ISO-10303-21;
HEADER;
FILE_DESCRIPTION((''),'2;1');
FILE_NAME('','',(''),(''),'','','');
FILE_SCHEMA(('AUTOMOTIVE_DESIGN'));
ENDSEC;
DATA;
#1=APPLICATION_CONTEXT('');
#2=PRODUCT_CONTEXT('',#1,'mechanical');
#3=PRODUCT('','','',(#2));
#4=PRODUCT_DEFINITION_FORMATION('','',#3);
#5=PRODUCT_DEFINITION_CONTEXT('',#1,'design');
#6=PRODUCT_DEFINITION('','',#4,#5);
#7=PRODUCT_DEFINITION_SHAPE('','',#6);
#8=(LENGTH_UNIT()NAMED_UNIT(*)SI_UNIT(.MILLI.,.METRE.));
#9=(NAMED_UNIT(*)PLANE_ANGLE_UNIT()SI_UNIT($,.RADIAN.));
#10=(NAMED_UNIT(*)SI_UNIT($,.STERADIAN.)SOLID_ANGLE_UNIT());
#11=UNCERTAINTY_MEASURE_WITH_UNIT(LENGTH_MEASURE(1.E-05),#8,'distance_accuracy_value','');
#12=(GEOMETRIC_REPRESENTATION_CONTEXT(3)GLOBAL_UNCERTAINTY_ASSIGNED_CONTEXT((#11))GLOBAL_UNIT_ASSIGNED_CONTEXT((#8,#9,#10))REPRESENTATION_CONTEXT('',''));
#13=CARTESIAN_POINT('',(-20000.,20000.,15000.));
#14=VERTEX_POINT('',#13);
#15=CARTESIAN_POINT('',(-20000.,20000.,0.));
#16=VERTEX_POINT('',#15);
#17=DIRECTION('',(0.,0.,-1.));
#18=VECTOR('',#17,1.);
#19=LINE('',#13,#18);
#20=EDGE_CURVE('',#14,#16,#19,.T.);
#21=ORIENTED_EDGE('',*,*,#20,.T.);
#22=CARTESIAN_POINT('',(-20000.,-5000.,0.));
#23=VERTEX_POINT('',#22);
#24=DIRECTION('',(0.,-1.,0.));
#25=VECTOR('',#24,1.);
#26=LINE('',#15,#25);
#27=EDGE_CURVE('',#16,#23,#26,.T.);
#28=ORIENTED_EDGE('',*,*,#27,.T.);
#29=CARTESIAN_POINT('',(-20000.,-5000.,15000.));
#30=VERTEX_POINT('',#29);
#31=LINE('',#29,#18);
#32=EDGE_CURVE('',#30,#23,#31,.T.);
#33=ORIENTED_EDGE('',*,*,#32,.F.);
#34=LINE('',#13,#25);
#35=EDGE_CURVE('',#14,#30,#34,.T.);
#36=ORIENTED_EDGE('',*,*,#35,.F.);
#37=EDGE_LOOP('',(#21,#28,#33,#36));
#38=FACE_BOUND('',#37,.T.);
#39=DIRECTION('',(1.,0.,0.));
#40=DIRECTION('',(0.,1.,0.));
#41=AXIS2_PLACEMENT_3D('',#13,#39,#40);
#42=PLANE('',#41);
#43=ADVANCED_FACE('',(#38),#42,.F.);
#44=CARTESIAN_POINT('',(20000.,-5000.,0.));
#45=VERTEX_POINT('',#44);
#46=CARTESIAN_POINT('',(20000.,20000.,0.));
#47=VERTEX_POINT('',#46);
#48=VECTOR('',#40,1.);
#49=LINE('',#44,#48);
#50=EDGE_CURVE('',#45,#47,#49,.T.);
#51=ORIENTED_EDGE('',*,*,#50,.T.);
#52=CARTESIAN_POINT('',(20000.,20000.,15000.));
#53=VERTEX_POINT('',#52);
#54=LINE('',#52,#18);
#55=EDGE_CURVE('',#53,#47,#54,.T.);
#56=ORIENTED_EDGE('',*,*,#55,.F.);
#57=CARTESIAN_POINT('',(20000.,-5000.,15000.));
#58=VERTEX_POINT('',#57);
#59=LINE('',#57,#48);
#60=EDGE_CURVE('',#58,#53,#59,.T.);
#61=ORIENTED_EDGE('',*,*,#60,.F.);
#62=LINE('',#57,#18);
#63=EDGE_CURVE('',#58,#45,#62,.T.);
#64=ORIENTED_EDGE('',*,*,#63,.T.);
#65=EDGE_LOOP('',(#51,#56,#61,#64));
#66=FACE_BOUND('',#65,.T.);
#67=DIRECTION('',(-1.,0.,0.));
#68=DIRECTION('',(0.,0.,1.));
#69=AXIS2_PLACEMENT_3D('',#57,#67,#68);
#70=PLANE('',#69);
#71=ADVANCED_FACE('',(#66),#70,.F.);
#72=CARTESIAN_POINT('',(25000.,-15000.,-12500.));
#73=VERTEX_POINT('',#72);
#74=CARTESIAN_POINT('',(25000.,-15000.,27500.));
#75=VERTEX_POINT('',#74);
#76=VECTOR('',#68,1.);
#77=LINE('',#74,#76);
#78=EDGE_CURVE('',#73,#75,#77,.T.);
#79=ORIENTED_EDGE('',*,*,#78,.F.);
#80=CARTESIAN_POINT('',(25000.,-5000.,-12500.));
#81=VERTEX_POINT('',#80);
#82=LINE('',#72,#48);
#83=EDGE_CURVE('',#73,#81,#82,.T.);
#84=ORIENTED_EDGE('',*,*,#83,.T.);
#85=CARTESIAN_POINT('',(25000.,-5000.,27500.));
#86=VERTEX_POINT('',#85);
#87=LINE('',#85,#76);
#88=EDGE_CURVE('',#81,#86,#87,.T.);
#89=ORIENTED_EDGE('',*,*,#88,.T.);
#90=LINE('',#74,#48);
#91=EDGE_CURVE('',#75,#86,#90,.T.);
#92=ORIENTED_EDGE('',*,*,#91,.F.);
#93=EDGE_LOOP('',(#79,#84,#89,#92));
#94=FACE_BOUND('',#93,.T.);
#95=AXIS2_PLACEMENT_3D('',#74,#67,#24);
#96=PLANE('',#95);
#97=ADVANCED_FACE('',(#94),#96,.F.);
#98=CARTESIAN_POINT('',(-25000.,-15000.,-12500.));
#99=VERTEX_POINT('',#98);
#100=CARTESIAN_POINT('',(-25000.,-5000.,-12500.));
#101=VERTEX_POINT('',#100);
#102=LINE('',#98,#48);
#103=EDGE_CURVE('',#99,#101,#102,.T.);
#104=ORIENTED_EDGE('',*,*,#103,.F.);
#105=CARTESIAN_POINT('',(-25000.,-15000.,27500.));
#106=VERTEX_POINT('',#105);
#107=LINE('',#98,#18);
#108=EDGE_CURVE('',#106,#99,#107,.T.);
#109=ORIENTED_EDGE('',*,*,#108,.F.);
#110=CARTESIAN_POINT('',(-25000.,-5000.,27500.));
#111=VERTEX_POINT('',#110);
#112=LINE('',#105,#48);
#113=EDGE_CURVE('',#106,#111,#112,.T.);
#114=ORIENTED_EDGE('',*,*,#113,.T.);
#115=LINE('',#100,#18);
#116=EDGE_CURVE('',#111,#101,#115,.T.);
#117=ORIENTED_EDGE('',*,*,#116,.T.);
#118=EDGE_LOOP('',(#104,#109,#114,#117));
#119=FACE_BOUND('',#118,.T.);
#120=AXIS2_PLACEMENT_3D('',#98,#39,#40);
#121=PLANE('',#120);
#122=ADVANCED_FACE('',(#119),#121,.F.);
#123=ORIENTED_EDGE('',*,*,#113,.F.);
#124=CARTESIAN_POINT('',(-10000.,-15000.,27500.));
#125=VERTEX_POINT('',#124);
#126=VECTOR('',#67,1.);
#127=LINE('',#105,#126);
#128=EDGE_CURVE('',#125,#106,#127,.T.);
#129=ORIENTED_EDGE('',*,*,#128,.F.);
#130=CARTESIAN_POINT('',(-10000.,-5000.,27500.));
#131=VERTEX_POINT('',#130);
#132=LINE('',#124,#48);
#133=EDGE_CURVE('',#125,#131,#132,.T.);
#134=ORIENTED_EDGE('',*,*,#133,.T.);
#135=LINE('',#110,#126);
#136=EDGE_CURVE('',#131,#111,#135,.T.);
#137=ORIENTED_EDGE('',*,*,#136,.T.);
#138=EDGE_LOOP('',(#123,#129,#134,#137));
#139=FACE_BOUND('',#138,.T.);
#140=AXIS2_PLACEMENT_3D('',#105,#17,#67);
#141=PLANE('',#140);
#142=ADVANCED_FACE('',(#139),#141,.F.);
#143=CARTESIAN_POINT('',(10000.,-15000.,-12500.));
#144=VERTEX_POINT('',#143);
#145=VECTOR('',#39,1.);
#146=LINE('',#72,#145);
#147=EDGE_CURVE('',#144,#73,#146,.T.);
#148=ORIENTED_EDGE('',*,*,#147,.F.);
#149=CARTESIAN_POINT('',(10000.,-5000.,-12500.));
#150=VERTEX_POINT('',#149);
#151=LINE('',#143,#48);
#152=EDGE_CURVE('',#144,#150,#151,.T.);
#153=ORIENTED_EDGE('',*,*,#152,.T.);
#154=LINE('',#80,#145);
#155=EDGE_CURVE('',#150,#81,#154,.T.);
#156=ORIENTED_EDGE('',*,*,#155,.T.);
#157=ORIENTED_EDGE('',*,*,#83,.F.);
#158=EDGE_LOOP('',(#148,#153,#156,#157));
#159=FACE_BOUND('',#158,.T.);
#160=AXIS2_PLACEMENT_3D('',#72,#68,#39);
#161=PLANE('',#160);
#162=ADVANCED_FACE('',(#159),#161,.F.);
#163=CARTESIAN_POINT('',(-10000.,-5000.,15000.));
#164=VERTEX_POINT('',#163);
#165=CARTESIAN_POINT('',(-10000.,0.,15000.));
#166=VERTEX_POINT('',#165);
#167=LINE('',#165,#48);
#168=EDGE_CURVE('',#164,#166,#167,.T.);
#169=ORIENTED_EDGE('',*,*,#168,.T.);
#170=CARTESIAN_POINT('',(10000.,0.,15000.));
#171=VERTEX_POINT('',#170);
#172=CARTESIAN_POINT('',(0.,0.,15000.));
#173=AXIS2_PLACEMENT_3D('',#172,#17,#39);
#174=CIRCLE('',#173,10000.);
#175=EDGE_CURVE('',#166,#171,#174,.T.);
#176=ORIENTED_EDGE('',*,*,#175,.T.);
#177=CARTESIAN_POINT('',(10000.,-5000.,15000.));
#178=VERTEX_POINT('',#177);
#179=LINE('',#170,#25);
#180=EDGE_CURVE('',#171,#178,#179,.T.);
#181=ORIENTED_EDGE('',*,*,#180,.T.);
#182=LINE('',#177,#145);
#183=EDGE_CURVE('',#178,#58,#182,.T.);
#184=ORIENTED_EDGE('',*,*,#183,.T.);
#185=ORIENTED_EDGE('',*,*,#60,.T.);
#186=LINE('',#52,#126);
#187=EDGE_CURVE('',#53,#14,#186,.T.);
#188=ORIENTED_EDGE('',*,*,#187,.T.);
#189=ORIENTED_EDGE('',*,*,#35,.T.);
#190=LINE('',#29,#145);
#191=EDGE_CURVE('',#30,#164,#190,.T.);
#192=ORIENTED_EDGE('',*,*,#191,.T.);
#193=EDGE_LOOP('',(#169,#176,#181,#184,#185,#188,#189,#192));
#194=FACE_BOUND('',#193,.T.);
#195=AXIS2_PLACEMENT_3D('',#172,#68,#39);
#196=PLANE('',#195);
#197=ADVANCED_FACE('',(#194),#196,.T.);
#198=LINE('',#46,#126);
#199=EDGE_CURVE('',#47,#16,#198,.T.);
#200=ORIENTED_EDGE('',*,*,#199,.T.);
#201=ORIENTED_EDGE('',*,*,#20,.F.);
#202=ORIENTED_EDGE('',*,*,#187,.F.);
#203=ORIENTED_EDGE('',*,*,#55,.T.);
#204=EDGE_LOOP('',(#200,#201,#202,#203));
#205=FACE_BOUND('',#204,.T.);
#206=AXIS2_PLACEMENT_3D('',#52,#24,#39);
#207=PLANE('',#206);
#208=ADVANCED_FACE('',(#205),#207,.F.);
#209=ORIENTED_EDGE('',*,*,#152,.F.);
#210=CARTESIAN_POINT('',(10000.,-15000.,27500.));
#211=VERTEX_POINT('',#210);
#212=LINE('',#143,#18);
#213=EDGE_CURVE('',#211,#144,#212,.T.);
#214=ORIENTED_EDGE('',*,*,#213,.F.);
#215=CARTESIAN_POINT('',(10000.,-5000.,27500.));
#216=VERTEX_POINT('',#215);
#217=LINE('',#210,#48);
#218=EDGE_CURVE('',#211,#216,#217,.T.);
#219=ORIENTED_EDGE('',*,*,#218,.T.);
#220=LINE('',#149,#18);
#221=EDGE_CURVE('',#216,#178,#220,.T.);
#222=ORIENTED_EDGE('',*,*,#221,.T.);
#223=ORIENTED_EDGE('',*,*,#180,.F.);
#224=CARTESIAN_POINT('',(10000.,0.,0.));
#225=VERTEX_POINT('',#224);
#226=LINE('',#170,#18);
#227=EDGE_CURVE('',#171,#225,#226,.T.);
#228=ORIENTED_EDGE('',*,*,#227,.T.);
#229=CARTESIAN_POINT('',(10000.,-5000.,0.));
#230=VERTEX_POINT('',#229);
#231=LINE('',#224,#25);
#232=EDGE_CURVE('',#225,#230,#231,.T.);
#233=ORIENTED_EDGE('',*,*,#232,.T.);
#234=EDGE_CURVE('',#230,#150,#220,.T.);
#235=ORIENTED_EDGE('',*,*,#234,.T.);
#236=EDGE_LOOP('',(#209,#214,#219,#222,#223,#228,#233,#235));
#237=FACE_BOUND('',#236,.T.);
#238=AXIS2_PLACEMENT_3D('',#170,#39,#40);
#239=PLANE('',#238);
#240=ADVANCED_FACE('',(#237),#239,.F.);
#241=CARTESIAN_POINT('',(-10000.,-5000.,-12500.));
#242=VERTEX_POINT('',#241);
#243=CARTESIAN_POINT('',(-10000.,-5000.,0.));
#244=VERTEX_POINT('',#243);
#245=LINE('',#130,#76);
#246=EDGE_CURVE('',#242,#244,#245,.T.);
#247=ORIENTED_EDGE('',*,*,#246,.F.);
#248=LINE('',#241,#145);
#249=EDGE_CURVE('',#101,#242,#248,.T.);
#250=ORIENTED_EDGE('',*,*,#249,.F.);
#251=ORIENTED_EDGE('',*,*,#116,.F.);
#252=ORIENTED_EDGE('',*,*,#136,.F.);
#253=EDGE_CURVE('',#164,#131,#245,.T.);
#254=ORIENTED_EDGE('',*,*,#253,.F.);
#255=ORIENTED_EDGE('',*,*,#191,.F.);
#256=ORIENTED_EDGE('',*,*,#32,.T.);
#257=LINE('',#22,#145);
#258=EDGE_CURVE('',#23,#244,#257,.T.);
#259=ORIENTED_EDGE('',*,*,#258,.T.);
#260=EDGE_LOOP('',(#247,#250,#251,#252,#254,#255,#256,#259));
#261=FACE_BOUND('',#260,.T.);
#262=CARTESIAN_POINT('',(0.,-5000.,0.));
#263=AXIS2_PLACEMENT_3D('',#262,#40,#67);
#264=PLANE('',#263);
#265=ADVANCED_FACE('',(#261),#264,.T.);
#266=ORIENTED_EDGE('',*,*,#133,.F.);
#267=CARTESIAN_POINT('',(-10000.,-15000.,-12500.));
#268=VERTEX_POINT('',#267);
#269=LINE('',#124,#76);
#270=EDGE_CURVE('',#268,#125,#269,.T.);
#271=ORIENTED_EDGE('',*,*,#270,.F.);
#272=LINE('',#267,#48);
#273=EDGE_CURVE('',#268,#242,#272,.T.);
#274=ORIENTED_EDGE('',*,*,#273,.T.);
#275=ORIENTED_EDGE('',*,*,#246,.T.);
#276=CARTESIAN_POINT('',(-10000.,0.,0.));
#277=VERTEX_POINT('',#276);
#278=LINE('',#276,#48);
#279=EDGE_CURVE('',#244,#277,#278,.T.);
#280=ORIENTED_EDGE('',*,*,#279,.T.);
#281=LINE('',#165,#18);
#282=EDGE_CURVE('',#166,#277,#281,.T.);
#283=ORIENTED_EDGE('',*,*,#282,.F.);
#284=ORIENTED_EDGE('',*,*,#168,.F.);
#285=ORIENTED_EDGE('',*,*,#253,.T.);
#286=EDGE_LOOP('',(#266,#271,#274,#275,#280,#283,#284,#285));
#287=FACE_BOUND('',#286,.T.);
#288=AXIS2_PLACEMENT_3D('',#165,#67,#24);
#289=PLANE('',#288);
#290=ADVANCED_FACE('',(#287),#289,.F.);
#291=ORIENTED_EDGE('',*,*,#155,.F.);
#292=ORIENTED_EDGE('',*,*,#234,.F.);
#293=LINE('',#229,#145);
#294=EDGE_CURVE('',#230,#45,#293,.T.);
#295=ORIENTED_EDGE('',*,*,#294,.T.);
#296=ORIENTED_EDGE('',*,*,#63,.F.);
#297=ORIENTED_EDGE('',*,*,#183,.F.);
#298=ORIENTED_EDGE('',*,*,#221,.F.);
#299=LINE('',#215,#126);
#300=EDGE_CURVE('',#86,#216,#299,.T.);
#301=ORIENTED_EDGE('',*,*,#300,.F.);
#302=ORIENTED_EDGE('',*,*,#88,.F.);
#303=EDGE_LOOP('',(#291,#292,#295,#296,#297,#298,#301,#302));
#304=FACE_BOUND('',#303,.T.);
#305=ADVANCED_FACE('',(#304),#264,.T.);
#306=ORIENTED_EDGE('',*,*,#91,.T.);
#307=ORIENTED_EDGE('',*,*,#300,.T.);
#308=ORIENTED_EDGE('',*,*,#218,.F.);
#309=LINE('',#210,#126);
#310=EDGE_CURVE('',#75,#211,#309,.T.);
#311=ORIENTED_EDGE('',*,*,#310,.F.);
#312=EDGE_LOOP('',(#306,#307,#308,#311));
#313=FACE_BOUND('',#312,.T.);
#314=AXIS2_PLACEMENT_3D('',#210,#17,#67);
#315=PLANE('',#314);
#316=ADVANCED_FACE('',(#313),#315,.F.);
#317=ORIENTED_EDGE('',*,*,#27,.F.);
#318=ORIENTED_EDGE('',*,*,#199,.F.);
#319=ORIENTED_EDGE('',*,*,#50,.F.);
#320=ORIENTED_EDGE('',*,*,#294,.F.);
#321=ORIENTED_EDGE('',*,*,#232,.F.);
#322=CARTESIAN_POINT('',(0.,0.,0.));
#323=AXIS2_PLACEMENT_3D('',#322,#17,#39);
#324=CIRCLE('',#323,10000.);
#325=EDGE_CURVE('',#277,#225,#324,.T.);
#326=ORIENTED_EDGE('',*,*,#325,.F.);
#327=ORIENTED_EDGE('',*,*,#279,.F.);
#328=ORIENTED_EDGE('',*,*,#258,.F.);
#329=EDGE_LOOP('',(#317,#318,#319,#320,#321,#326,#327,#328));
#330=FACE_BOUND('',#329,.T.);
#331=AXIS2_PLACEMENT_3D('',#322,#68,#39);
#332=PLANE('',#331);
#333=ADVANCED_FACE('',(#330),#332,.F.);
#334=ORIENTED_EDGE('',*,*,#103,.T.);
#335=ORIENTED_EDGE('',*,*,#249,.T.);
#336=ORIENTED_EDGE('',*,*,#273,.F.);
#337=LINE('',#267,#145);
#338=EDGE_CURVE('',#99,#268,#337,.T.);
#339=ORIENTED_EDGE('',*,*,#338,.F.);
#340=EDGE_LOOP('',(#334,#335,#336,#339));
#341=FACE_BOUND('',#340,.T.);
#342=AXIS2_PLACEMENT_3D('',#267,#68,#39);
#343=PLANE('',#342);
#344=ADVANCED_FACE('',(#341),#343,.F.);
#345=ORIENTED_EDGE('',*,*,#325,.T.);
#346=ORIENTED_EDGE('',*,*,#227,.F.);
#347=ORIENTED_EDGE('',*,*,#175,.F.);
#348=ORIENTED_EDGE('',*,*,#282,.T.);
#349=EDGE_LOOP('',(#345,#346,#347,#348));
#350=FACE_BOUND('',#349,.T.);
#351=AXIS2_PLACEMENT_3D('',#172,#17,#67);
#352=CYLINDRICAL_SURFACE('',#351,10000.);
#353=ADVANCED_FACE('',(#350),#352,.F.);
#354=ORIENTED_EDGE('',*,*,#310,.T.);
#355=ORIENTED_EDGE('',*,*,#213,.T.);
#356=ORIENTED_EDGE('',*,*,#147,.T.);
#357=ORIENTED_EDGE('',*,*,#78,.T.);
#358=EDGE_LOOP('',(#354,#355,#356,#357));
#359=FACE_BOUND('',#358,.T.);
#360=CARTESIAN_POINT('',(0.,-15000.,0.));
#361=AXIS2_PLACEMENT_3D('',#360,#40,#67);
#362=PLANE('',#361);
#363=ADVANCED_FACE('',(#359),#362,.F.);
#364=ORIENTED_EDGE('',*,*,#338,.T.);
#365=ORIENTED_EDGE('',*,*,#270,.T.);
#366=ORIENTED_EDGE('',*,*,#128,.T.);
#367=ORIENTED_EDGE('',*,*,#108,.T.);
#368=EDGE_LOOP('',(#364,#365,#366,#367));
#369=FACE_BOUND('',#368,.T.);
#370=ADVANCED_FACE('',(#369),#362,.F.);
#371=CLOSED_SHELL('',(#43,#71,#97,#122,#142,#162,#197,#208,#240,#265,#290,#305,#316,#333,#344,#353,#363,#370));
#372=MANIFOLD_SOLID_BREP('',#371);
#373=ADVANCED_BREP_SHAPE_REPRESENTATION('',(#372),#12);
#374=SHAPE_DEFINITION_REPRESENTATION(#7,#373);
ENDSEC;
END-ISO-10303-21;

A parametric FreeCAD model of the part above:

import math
import FreeCAD as App
import Part
import Sketcher

doc = App.newDocument("Part")
body = doc.addObject("PartDesign::Body", "Body")

# Sketch on XY plane
sketch1 = body.newObject("Sketcher::SketchObject", "Sketch")
sketch1.AttachmentSupport = (doc.getObject("XY_Plane"), [""])
sketch1.MapMode = "FlatFace"
sketch1.addGeometry(Part.LineSegment(App.Vector(-10000, -5000, 0), App.Vector(-10000, 0, 0)), False)
sketch1.addGeometry(Part.ArcOfCircle(Part.Circle(App.Vector(0, 0, 0), App.Vector(0, 0, 1), 10000), math.radians(0), math.radians(180)), False)
sketch1.addGeometry(Part.LineSegment(App.Vector(10000, 0, 0), App.Vector(10000, -5000, 0)), False)
sketch1.addGeometry(Part.LineSegment(App.Vector(10000, -5000, 0), App.Vector(20000, -5000, 0)), False)
sketch1.addGeometry(Part.LineSegment(App.Vector(20000, -5000, 0), App.Vector(20000, 20000, 0)), False)
sketch1.addGeometry(Part.LineSegment(App.Vector(20000, 20000, 0), App.Vector(-20000, 20000, 0)), False)
sketch1.addGeometry(Part.LineSegment(App.Vector(-20000, 20000, 0), App.Vector(-20000, -5000, 0)), False)
sketch1.addGeometry(Part.LineSegment(App.Vector(-20000, -5000, 0), App.Vector(-10000, -5000, 0)), False)
sketch1.addConstraint(Sketcher.Constraint("Coincident", 0, 2, 1, 2))
sketch1.addConstraint(Sketcher.Constraint("Coincident", 1, 1, 2, 1))
sketch1.addConstraint(Sketcher.Constraint("Coincident", 2, 2, 3, 1))
sketch1.addConstraint(Sketcher.Constraint("Coincident", 3, 2, 4, 1))
sketch1.addConstraint(Sketcher.Constraint("Coincident", 4, 2, 5, 1))
sketch1.addConstraint(Sketcher.Constraint("Coincident", 5, 2, 6, 1))
sketch1.addConstraint(Sketcher.Constraint("Coincident", 6, 2, 7, 1))
sketch1.addConstraint(Sketcher.Constraint("Coincident", 7, 2, 0, 1))
sketch1.addConstraint(Sketcher.Constraint("Vertical", 0))
sketch1.addConstraint(Sketcher.Constraint("Vertical", 2))
sketch1.addConstraint(Sketcher.Constraint("Horizontal", 3))
sketch1.addConstraint(Sketcher.Constraint("Vertical", 4))
sketch1.addConstraint(Sketcher.Constraint("Horizontal", 5))
sketch1.addConstraint(Sketcher.Constraint("Vertical", 6))
sketch1.addConstraint(Sketcher.Constraint("Horizontal", 7))
sketch1.addConstraint(Sketcher.Constraint("Coincident", 1, 3, -1, 1))
sketch1.addConstraint(Sketcher.Constraint("Symmetric", 3, 2, 6, 2, -2))
sketch1.addConstraint(Sketcher.Constraint("PointOnObject", 0, 2, -1))
sketch1.addConstraint(Sketcher.Constraint("Equal", 0, 2))
sketch1.addConstraint(Sketcher.Constraint("Radius", 1, 10000.0))
sketch1.addConstraint(Sketcher.Constraint("DistanceX", 3, 1, 3, 2, 10000.0))
sketch1.addConstraint(Sketcher.Constraint("DistanceY", 0, 1, 0, 2, 5000.0))
sketch1.addConstraint(Sketcher.Constraint("DistanceY", 4, 1, 4, 2, 25000.0))
pad1 = body.newObject("PartDesign::Pad", "Pad")
pad1.Profile = sketch1
pad1.Length = 15000

# Sketch on XZ plane
sketch2 = body.newObject("Sketcher::SketchObject", "Sketch001")
sketch2.AttachmentSupport = (doc.getObject("XZ_Plane"), [""])
sketch2.MapMode = "FlatFace"
sketch2.AttachmentOffset = App.Placement(App.Vector(0, 0, 5000), App.Rotation())
sketch2.addGeometry(Part.LineSegment(App.Vector(10000, 27500, 0), App.Vector(10000, -12500, 0)), False)
sketch2.addGeometry(Part.LineSegment(App.Vector(10000, -12500, 0), App.Vector(25000, -12500, 0)), False)
sketch2.addGeometry(Part.LineSegment(App.Vector(25000, -12500, 0), App.Vector(25000, 27500, 0)), False)
sketch2.addGeometry(Part.LineSegment(App.Vector(25000, 27500, 0), App.Vector(10000, 27500, 0)), False)
sketch2.addGeometry(Part.LineSegment(App.Vector(-25000, 27500, 0), App.Vector(-25000, -12500, 0)), False)
sketch2.addGeometry(Part.LineSegment(App.Vector(-25000, -12500, 0), App.Vector(-10000, -12500, 0)), False)
sketch2.addGeometry(Part.LineSegment(App.Vector(-10000, -12500, 0), App.Vector(-10000, 27500, 0)), False)
sketch2.addGeometry(Part.LineSegment(App.Vector(-10000, 27500, 0), App.Vector(-25000, 27500, 0)), False)
sketch2.addConstraint(Sketcher.Constraint("Coincident", 0, 2, 1, 1))
sketch2.addConstraint(Sketcher.Constraint("Coincident", 1, 2, 2, 1))
sketch2.addConstraint(Sketcher.Constraint("Coincident", 2, 2, 3, 1))
sketch2.addConstraint(Sketcher.Constraint("Coincident", 3, 2, 0, 1))
sketch2.addConstraint(Sketcher.Constraint("Coincident", 4, 2, 5, 1))
sketch2.addConstraint(Sketcher.Constraint("Coincident", 5, 2, 6, 1))
sketch2.addConstraint(Sketcher.Constraint("Coincident", 6, 2, 7, 1))
sketch2.addConstraint(Sketcher.Constraint("Coincident", 7, 2, 4, 1))
sketch2.addConstraint(Sketcher.Constraint("Vertical", 0))
sketch2.addConstraint(Sketcher.Constraint("Horizontal", 1))
sketch2.addConstraint(Sketcher.Constraint("Vertical", 2))
sketch2.addConstraint(Sketcher.Constraint("Horizontal", 3))
sketch2.addConstraint(Sketcher.Constraint("Vertical", 4))
sketch2.addConstraint(Sketcher.Constraint("Horizontal", 5))
sketch2.addConstraint(Sketcher.Constraint("Vertical", 6))
sketch2.addConstraint(Sketcher.Constraint("Horizontal", 7))
sketch2.addConstraint(Sketcher.Constraint("Symmetric", 1, 2, 4, 2, -2))
sketch2.addConstraint(Sketcher.Constraint("Symmetric", 3, 2, 6, 2, -2))
sketch2.addConstraint(Sketcher.Constraint("DistanceX", 1, 1, 1, 2, 15000.0))
sketch2.addConstraint(Sketcher.Constraint("DistanceY", 0, 2, 0, 1, 40000.0))
sketch2.addConstraint(Sketcher.Constraint("DistanceX", -1, 1, 0, 2, 10000.0))
sketch2.addConstraint(Sketcher.Constraint("DistanceY", 0, 2, -1, 1, 12500.0))
pad2 = body.newObject("PartDesign::Pad", "Pad001")
pad2.Profile = sketch2
pad2.Length = 10000

doc.recompute()
